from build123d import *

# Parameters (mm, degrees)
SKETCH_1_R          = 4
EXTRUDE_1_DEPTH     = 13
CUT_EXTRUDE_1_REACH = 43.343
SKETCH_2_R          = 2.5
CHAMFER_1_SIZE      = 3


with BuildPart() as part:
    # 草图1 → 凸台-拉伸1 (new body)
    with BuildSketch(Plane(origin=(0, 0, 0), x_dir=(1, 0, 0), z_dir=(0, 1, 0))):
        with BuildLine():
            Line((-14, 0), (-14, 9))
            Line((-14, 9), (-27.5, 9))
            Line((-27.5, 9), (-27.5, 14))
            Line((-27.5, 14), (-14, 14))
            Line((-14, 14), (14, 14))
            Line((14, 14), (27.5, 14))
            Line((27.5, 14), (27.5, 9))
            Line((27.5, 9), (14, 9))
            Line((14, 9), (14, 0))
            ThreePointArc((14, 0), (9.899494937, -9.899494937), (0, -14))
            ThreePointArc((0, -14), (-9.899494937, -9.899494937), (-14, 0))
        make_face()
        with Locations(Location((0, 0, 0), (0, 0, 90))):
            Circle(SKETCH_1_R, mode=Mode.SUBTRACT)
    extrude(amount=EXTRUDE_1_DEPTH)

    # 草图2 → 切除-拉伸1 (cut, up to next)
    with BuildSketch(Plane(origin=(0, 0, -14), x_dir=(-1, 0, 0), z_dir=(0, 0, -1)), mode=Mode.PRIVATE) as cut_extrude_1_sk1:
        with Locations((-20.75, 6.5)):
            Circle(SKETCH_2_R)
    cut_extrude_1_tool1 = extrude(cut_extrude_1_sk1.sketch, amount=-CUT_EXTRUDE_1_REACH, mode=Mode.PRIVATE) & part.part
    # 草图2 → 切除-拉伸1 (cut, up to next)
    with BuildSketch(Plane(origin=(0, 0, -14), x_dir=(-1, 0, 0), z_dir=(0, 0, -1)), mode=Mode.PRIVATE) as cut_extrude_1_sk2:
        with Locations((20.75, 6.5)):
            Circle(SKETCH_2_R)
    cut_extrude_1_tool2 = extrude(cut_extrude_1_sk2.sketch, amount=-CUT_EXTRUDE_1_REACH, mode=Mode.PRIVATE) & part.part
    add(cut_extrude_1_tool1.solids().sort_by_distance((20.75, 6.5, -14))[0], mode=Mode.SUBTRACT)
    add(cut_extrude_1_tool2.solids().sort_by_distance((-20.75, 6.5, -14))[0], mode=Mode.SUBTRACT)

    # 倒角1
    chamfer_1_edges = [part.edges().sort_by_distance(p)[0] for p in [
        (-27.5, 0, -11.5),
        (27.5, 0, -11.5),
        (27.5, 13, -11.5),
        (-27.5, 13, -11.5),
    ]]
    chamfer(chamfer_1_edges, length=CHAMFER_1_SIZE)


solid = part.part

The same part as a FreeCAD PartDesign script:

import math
import FreeCAD as App
import Part
import Sketcher

V = App.Vector
Q = App.Units.Quantity


def edges_at(feature, points):
    """Names of the edges that pass closest to the given points."""
    edges = feature.Shape.Edges
    near = lambda p: min(range(len(edges)), key=lambda i: edges[i].distToShape(Part.Vertex(*p))[0])
    return sorted({f"Edge{near(p) + 1}" for p in points})

doc = App.newDocument("Part")
body = doc.addObject("PartDesign::Body", "Body")

# Sketch on XZ plane
sketch1 = doc.addObject("Sketcher::SketchObject", "Sketch")
body.addObject(sketch1)
sketch1.AttachmentSupport = (doc.XZ_Plane, [""])
sketch1.MapMode = "FlatFace"
sketch1.addGeometry(Part.LineSegment(V(-14, -9, 0), V(-14, 0, 0)), False)
sketch1.addGeometry(Part.ArcOfCircle(Part.Circle(V(0, 0, 0), V(0, 0, 1), 14), math.radians(90), math.radians(180)), False)
sketch1.addGeometry(Part.ArcOfCircle(Part.Circle(V(0, 0, 0), V(0, 0, 1), 14), math.radians(0), math.radians(90)), False)
sketch1.addGeometry(Part.LineSegment(V(14, 0, 0), V(14, -9, 0)), False)
sketch1.addGeometry(Part.LineSegment(V(14, -9, 0), V(27.5, -9, 0)), False)
sketch1.addGeometry(Part.LineSegment(V(27.5, -9, 0), V(27.5, -14, 0)), False)
sketch1.addGeometry(Part.LineSegment(V(27.5, -14, 0), V(-27.5, -14, 0)), False)
sketch1.addGeometry(Part.LineSegment(V(-27.5, -14, 0), V(-27.5, -9, 0)), False)
sketch1.addGeometry(Part.LineSegment(V(-27.5, -9, 0), V(-14, -9, 0)), False)
sketch1.addGeometry(Part.Circle(V(0, 0, 0), V(0, 0, 1), 4), False)
sketch1.addConstraint(Sketcher.Constraint("Tangent", 0, 2, 1, 2))
sketch1.addConstraint(Sketcher.Constraint("Tangent", 1, 1, 2, 2))
sketch1.addConstraint(Sketcher.Constraint("Tangent", 2, 1, 3, 1))
sketch1.addConstraint(Sketcher.Constraint("Coincident", 3, 2, 4, 1))
sketch1.addConstraint(Sketcher.Constraint("Coincident", 4, 2, 5, 1))
sketch1.addConstraint(Sketcher.Constraint("Coincident", 5, 2, 6, 1))
sketch1.addConstraint(Sketcher.Constraint("Coincident", 6, 2, 7, 1))
sketch1.addConstraint(Sketcher.Constraint("Coincident", 7, 2, 8, 1))
sketch1.addConstraint(Sketcher.Constraint("Coincident", 8, 2, 0, 1))
sketch1.addConstraint(Sketcher.Constraint("Vertical", 0))
sketch1.addConstraint(Sketcher.Constraint("Vertical", 3))
sketch1.addConstraint(Sketcher.Constraint("Horizontal", 4))
sketch1.addConstraint(Sketcher.Constraint("Vertical", 5))
sketch1.addConstraint(Sketcher.Constraint("Horizontal", 6))
sketch1.addConstraint(Sketcher.Constraint("Vertical", 7))
sketch1.addConstraint(Sketcher.Constraint("Horizontal", 8))
sketch1.addConstraint(Sketcher.Constraint("Coincident", 1, 3, -1, 1))
sketch1.addConstraint(Sketcher.Constraint("Coincident", 9, 3, -1, 1))
sketch1.addConstraint(Sketcher.Constraint("Equal", 1, 2))
sketch1.addConstraint(Sketcher.Constraint("Symmetric", 4, 2, 7, 2, -2))
sketch1.addConstraint(Sketcher.Constraint("PointOnObject", 1, 1, -2))
sketch1.addConstraint(Sketcher.Constraint("Diameter", 9, Q("8 mm")))
sketch1.addConstraint(Sketcher.Constraint("Radius", 1, Q("14 mm")))
sketch1.addConstraint(Sketcher.Constraint("DistanceX", 6, 2, 6, 1, Q("55 mm")))
sketch1.addConstraint(Sketcher.Constraint("DistanceY", 0, 1, 0, 2, Q("9 mm")))
sketch1.addConstraint(Sketcher.Constraint("DistanceY", 5, 2, 5, 1, Q("5 mm")))
pad1 = doc.addObject("PartDesign::Pad", "Pad")
body.addObject(pad1)
pad1.Profile = sketch1
pad1.Length = 13
pad1.Reversed = True

# Sketch on XY plane
sketch2 = doc.addObject("Sketcher::SketchObject", "Sketch001")
body.addObject(sketch2)
sketch2.AttachmentSupport = (doc.XY_Plane, [""])
sketch2.MapMode = "FlatFace"
sketch2.AttachmentOffset = App.Placement(V(0, 0, -14), App.Rotation())
sketch2.addGeometry(Part.Circle(V(20.8, 6.5, 0), V(0, 0, 1), 2.5), False)
sketch2.addConstraint(Sketcher.Constraint("Diameter", 0, Q("5 mm")))
sketch2.addConstraint(Sketcher.Constraint("DistanceY", -1, 1, 0, 3, Q("6.5 mm")))
sketch2.addConstraint(Sketcher.Constraint("DistanceX", -1, 1, 0, 3, Q("20.75 mm")))
pocket1 = doc.addObject("PartDesign::Pocket", "Pocket")
body.addObject(pocket1)
pocket1.Profile = sketch2
pocket1.Type = "UpToFirst"
pocket1.Reversed = True

# Sketch on XY plane
sketch3 = doc.addObject("Sketcher::SketchObject", "Sketch002")
body.addObject(sketch3)
sketch3.AttachmentSupport = (doc.XY_Plane, [""])
sketch3.MapMode = "FlatFace"
sketch3.AttachmentOffset = App.Placement(V(0, 0, -14), App.Rotation())
sketch3.addGeometry(Part.Circle(V(-20.8, 6.5, 0), V(0, 0, 1), 2.5), False)
sketch3.addConstraint(Sketcher.Constraint("Diameter", 0, Q("5 mm")))
sketch3.addConstraint(Sketcher.Constraint("DistanceY", -1, 1, 0, 3, Q("6.5 mm")))
sketch3.addConstraint(Sketcher.Constraint("DistanceX", 0, 3, -1, 1, Q("20.75 mm")))
pocket2 = doc.addObject("PartDesign::Pocket", "Pocket001")
body.addObject(pocket2)
pocket2.Profile = sketch3
pocket2.Type = "UpToFirst"
pocket2.Reversed = True
doc.recompute()

chamfer = doc.addObject("PartDesign::Chamfer", "Chamfer")
body.addObject(chamfer)
chamfer.Base = (pocket2, edges_at(pocket2, [
    (-27.5, 0, -11.5),
    (27.5, 0, -11.5),
    (27.5, 13, -11.5),
    (-27.5, 13, -11.5),
]))
chamfer.Size = 3

doc.recompute()
